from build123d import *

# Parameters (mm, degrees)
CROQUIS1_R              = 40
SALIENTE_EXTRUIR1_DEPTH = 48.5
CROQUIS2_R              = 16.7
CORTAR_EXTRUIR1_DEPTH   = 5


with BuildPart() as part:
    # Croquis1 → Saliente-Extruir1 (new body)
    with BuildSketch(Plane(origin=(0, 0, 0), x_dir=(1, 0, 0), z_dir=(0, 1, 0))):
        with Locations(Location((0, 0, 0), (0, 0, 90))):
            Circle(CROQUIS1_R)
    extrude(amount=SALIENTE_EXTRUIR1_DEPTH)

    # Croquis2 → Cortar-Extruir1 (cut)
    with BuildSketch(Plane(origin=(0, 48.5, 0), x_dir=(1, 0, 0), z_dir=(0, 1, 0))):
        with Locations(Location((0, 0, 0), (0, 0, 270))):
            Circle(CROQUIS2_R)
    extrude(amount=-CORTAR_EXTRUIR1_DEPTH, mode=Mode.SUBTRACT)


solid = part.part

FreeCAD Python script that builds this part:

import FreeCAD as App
import Part
import Sketcher
Q = App.Units.Quantity

doc = App.newDocument("Part")
params = doc.addObject("Spreadsheet::Sheet", "Params")
for row, (alias, value) in enumerate([
    ("sketch1_diameter", "80 mm"),
    ("pad1_length", "48.5 mm"),
    ("sketch2_diameter", "33.4 mm"),
    ("pocket1_length", "5 mm"),
], start=1):
    params.set(f"A{row}", alias)
    params.set(f"B{row}", "=" + value)
    params.setAlias(f"B{row}", alias)

body = doc.addObject("PartDesign::Body", "Body")

# Sketch on XZ plane
sketch1 = doc.addObject("Sketcher::SketchObject", "Sketch")
body.addObject(sketch1)
sketch1.AttachmentSupport = (doc.XZ_Plane, [""])
sketch1.MapMode = "FlatFace"
sketch1.addGeometry(Part.Circle(App.Vector(0, 0, 0), App.Vector(0, 0, 1), 40), False)
sketch1.addConstraint([
    Sketcher.Constraint("Coincident", 0, 3, -1, 1),
    Sketcher.Constraint("Diameter", 0, Q("80 mm")),
])
sketch1.setExpression("Constraints[1]", "Params.sketch1_diameter")
pad1 = doc.addObject("PartDesign::Pad", "Pad")
body.addObject(pad1)
pad1.Profile = sketch1
pad1.setExpression("Length", "Params.pad1_length")
pad1.Reversed = True

# Sketch on XZ plane
sketch2 = doc.addObject("Sketcher::SketchObject", "Sketch001")
body.addObject(sketch2)
sketch2.AttachmentSupport = (doc.XZ_Plane, [""])
sketch2.MapMode = "FlatFace"
sketch2.AttachmentOffset = App.Placement(App.Vector(0, 0, -48.5), App.Rotation())
sketch2.addGeometry(Part.Circle(App.Vector(0, 0, 0), App.Vector(0, 0, 1), 17), False)
sketch2.addConstraint([
    Sketcher.Constraint("Coincident", 0, 3, -1, 1),
    Sketcher.Constraint("Diameter", 0, Q("33.4 mm")),
])
sketch2.setExpression("Constraints[1]", "Params.sketch2_diameter")
pocket1 = doc.addObject("PartDesign::Pocket", "Pocket")
body.addObject(pocket1)
pocket1.Profile = sketch2
pocket1.setExpression("Length", "Params.pocket1_length")
pocket1.Reversed = True

doc.recompute()
